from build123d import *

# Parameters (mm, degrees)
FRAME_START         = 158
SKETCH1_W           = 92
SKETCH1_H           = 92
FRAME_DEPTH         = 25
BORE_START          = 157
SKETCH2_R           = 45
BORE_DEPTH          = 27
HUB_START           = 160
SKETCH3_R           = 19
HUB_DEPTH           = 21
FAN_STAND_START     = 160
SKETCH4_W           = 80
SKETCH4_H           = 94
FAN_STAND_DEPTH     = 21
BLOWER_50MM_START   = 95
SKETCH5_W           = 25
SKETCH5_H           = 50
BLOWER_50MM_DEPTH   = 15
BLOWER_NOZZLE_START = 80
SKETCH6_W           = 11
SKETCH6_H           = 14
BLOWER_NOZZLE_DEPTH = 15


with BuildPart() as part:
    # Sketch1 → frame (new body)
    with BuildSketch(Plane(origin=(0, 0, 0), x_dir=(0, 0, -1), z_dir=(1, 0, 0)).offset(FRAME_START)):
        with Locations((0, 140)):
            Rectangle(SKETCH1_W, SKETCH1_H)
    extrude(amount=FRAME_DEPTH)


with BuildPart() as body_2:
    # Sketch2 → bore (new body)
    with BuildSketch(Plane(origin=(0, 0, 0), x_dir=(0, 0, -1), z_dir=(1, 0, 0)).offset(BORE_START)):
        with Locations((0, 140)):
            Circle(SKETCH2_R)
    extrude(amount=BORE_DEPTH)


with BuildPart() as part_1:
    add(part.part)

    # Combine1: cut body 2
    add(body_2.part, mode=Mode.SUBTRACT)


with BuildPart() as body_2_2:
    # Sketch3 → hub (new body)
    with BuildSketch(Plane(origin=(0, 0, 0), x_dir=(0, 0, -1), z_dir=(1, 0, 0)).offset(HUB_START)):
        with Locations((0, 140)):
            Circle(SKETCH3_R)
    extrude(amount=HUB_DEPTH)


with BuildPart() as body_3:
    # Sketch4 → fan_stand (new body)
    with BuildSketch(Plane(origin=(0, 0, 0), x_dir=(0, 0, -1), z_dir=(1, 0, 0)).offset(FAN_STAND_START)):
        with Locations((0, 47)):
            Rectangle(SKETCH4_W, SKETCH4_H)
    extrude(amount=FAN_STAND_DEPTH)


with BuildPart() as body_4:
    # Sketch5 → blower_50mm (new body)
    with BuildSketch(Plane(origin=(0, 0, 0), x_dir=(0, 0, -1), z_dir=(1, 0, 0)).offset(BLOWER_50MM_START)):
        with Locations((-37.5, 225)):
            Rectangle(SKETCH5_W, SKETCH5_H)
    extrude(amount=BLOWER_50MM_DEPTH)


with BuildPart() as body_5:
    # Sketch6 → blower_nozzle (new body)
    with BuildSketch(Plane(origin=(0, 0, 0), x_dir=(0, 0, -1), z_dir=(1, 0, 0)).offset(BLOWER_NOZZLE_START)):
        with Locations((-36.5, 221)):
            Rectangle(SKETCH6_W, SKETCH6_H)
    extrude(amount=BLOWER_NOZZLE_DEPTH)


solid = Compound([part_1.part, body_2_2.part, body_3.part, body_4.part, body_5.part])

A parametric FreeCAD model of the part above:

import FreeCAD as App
import Part
import Sketcher

V = App.Vector
Q = App.Units.Quantity


def add_polygon(sketch, points):
    """Adds a closed chain of lines whose ends are joined by coincident constraints."""
    first, n = sketch.GeometryCount, len(points)
    for a, b in zip(points, points[1:] + points[:1]):
        sketch.addGeometry(Part.LineSegment(App.Vector(*a, 0), App.Vector(*b, 0)), False)
    for i in range(n):
        sketch.addConstraint(Sketcher.Constraint("Coincident", first + i, 2, first + (i + 1) % n, 1))

doc = App.newDocument("Part")
params = doc.addObject("Spreadsheet::Sheet", "Params")
for row, (alias, value) in enumerate([
    ("sketch1_width", "92 mm"),
    ("pad1_length", "25 mm"),
    ("sketch2_diameter", "90 mm"),
    ("pad2_length", "27 mm"),
    ("sketch3_diameter", "38 mm"),
    ("pad3_length", "21 mm"),
    ("sketch4_width", "94 mm"),
    ("sketch4_height", "80 mm"),
    ("pad4_length", "21 mm"),
    ("sketch5_width", "50 mm"),
    ("sketch5_height", "25 mm"),
    ("pad5_length", "15 mm"),
    ("sketch6_width", "14 mm"),
    ("sketch6_height", "11 mm"),
    ("pad6_length", "15 mm"),
], start=1):
    params.set(f"A{row}", alias)
    params.set(f"B{row}", "=" + value)
    params.setAlias(f"B{row}", alias)

body = doc.addObject("PartDesign::Body", "Body")

# Sketch on YZ plane
sketch1 = body.newObject("Sketcher::SketchObject", "Sketch")
sketch1.AttachmentSupport = (doc.getObject("YZ_Plane"), [""])
sketch1.MapMode = "FlatFace"
sketch1.AttachmentOffset = App.Placement(V(0, 0, 158), App.Rotation())
add_polygon(sketch1, [(186, 46), (94, 46), (94, -46), (186, -46)])  # lines 0-3
sketch1.addConstraint([
    Sketcher.Constraint("Horizontal", 0),
    Sketcher.Constraint("Vertical", 1),
    Sketcher.Constraint("Horizontal", 2),
    Sketcher.Constraint("Vertical", 3),
    Sketcher.Constraint("Equal", 2, 1),
    Sketcher.Constraint("DistanceX", 0, 2, 0, 1, Q("92 mm")),
    Sketcher.Constraint("DistanceX", -1, 1, 0, 2, Q("94 mm")),
    Sketcher.Constraint("DistanceY", -1, 1, 0, 2, Q("46 mm")),
])
sketch1.setExpression("Constraints[9]", "Params.sketch1_width")
pad1 = body.newObject("PartDesign::Pad", "Pad")
pad1.Profile = sketch1
pad1.setExpression("Length", "Params.pad1_length")
body2 = doc.addObject("PartDesign::Body", "Body001")

# Sketch on YZ plane
sketch2 = body2.newObject("Sketcher::SketchObject", "Sketch001")
sketch2.AttachmentSupport = (doc.getObject("YZ_Plane001"), [""])
sketch2.MapMode = "FlatFace"
sketch2.AttachmentOffset = App.Placement(V(0, 0, 157), App.Rotation())
sketch2.addGeometry(Part.Circle(V(140, 0, 0), V(0, 0, 1), 45), False)
sketch2.addConstraint([
    Sketcher.Constraint("PointOnObject", 0, 3, -1),
    Sketcher.Constraint("Diameter", 0, Q("90 mm")),
    Sketcher.Constraint("DistanceX", -1, 1, 0, 3, Q("140 mm")),
])
sketch2.setExpression("Constraints[1]", "Params.sketch2_diameter")
pad2 = body2.newObject("PartDesign::Pad", "Pad001")
pad2.Profile = sketch2
pad2.setExpression("Length", "Params.pad2_length")
doc.recompute()

boolean = body.newObject("PartDesign::Boolean", "Boolean")
boolean.Type = "Cut"
boolean.addObjects([body2])
body3 = doc.addObject("PartDesign::Body", "Body002")

# Sketch on YZ plane
sketch3 = body3.newObject("Sketcher::SketchObject", "Sketch002")
sketch3.AttachmentSupport = (doc.getObject("YZ_Plane002"), [""])
sketch3.MapMode = "FlatFace"
sketch3.AttachmentOffset = App.Placement(V(0, 0, 160), App.Rotation())
sketch3.addGeometry(Part.Circle(V(140, 0, 0), V(0, 0, 1), 19), False)
sketch3.addConstraint([
    Sketcher.Constraint("PointOnObject", 0, 3, -1),
    Sketcher.Constraint("Diameter", 0, Q("38 mm")),
    Sketcher.Constraint("DistanceX", -1, 1, 0, 3, Q("140 mm")),
])
sketch3.setExpression("Constraints[1]", "Params.sketch3_diameter")
pad3 = body3.newObject("PartDesign::Pad", "Pad002")
pad3.Profile = sketch3
pad3.setExpression("Length", "Params.pad3_length")
body4 = doc.addObject("PartDesign::Body", "Body003")

# Sketch on YZ plane
sketch4 = body4.newObject("Sketcher::SketchObject", "Sketch003")
sketch4.AttachmentSupport = (doc.getObject("YZ_Plane003"), [""])
sketch4.MapMode = "FlatFace"
sketch4.AttachmentOffset = App.Placement(V(0, 0, 160), App.Rotation())
add_polygon(sketch4, [(94, 40), (0, 40), (0, -40), (94, -40)])  # lines 0-3
sketch4.addConstraint([
    Sketcher.Constraint("Horizontal", 0),
    Sketcher.Constraint("Vertical", 1),
    Sketcher.Constraint("Horizontal", 2),
    Sketcher.Constraint("Vertical", 3),
    Sketcher.Constraint("Symmetric", 0, 2, 1, 2, -1, 1),
    Sketcher.Constraint("DistanceX", 0, 2, 0, 1, Q("94 mm")),
    Sketcher.Constraint("DistanceY", 1, 2, 1, 1, Q("80 mm")),
])
sketch4.setExpression("Constraints[9]", "Params.sketch4_width")
sketch4.setExpression("Constraints[10]", "Params.sketch4_height")
pad4 = body4.newObject("PartDesign::Pad", "Pad003")
pad4.Profile = sketch4
pad4.setExpression("Length", "Params.pad4_length")
body5 = doc.addObject("PartDesign::Body", "Body004")

# Sketch on YZ plane
sketch5 = body5.newObject("Sketcher::SketchObject", "Sketch004")
sketch5.AttachmentSupport = (doc.getObject("YZ_Plane004"), [""])
sketch5.MapMode = "FlatFace"
sketch5.AttachmentOffset = App.Placement(V(0, 0, 95), App.Rotation())
add_polygon(sketch5, [(250, 50), (200, 50), (200, 25), (250, 25)])  # lines 0-3
sketch5.addConstraint([
    Sketcher.Constraint("Horizontal", 0),
    Sketcher.Constraint("Vertical", 1),
    Sketcher.Constraint("Horizontal", 2),
    Sketcher.Constraint("Vertical", 3),
    Sketcher.Constraint("DistanceX", 0, 2, 0, 1, Q("50 mm")),
    Sketcher.Constraint("DistanceY", 1, 2, 1, 1, Q("25 mm")),
    Sketcher.Constraint("DistanceX", -1, 1, 0, 2, Q("200 mm")),
    Sketcher.Constraint("DistanceY", -1, 1, 0, 2, Q("50 mm")),
])
sketch5.setExpression("Constraints[8]", "Params.sketch5_width")
sketch5.setExpression("Constraints[9]", "Params.sketch5_height")
pad5 = body5.newObject("PartDesign::Pad", "Pad004")
pad5.Profile = sketch5
pad5.setExpression("Length", "Params.pad5_length")
body6 = doc.addObject("PartDesign::Body", "Body005")

# Sketch on YZ plane
sketch6 = body6.newObject("Sketcher::SketchObject", "Sketch005")
sketch6.AttachmentSupport = (doc.getObject("YZ_Plane005"), [""])
sketch6.MapMode = "FlatFace"
sketch6.AttachmentOffset = App.Placement(V(0, 0, 80), App.Rotation())
add_polygon(sketch6, [(228, 42), (214, 42), (214, 31), (228, 31)])  # lines 0-3
sketch6.addConstraint([
    Sketcher.Constraint("Horizontal", 0),
    Sketcher.Constraint("Vertical", 1),
    Sketcher.Constraint("Horizontal", 2),
    Sketcher.Constraint("Vertical", 3),
    Sketcher.Constraint("DistanceX", 0, 2, 0, 1, Q("14 mm")),
    Sketcher.Constraint("DistanceY", 1, 2, 1, 1, Q("11 mm")),
    Sketcher.Constraint("DistanceX", -1, 1, 0, 2, Q("214 mm")),
    Sketcher.Constraint("DistanceY", -1, 1, 0, 2, Q("42 mm")),
])
sketch6.setExpression("Constraints[8]", "Params.sketch6_width")
sketch6.setExpression("Constraints[9]", "Params.sketch6_height")
pad6 = body6.newObject("PartDesign::Pad", "Pad005")
pad6.Profile = sketch6
pad6.setExpression("Length", "Params.pad6_length")

doc.recompute()
